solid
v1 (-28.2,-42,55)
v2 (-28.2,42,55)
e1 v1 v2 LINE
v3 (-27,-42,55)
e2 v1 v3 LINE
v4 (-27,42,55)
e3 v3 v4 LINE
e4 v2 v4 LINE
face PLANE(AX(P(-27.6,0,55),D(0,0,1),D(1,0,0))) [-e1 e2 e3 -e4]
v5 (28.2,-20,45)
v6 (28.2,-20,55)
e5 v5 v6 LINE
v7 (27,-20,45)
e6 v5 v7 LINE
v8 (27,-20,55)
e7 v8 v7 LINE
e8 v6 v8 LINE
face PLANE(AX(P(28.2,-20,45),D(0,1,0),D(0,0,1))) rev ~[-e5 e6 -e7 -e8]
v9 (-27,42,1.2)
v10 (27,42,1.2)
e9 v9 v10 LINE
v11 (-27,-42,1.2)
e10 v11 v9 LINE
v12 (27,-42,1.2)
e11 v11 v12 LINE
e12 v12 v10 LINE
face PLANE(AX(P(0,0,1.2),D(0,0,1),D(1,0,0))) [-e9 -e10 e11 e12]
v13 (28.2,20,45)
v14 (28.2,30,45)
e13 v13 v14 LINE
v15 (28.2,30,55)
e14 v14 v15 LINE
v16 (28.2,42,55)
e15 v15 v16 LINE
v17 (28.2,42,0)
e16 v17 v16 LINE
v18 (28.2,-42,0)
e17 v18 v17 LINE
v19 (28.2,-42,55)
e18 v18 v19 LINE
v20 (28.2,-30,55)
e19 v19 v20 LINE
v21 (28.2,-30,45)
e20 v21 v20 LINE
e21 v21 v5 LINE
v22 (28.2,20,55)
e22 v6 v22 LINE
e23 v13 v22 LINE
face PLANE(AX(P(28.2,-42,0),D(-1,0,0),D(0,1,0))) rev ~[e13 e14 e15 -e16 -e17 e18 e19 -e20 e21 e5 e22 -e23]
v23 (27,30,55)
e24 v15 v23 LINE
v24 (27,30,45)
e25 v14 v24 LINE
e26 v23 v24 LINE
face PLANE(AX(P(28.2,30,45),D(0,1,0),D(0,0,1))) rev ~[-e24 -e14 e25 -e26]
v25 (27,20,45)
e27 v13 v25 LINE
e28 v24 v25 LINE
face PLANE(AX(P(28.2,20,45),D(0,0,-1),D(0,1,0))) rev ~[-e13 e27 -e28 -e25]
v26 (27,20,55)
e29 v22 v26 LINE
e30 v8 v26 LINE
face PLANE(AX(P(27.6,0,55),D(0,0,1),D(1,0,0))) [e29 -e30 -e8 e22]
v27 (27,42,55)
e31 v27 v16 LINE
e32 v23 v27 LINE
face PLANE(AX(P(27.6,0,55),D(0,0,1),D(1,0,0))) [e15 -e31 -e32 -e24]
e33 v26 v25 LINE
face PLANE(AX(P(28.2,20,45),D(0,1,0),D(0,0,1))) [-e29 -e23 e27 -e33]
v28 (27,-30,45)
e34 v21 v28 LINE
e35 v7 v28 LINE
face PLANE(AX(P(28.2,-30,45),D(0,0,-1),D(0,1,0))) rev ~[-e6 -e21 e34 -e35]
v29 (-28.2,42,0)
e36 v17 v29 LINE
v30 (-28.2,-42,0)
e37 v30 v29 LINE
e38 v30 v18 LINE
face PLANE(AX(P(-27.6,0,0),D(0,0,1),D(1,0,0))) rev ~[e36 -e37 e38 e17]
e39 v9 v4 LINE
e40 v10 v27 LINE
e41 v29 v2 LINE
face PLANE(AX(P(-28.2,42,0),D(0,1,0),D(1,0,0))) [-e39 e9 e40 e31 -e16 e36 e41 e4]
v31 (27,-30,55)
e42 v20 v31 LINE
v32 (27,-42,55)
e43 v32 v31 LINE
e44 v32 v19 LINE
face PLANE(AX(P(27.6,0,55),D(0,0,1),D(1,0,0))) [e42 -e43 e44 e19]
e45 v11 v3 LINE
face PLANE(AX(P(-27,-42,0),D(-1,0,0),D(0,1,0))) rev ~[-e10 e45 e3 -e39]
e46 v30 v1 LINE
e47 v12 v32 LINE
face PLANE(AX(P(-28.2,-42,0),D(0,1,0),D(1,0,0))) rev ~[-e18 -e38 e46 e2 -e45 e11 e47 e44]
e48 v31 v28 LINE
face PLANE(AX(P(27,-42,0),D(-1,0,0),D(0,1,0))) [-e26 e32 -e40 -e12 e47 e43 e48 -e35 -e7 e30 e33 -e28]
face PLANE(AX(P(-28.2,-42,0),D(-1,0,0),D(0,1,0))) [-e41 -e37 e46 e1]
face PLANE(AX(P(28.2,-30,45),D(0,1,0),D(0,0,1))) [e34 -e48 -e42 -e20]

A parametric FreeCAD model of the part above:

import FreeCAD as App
import Part
import Sketcher
Q = App.Units.Quantity


def add_polygon(sketch, points):
    """Adds a closed chain of lines whose ends are joined by coincident constraints."""
    first, n = sketch.GeometryCount, len(points)
    for a, b in zip(points, points[1:] + points[:1]):
        sketch.addGeometry(Part.LineSegment(App.Vector(*a, 0), App.Vector(*b, 0)), False)
    for i in range(n):
        sketch.addConstraint(Sketcher.Constraint("Coincident", first + i, 2, first + (i + 1) % n, 1))

doc = App.newDocument("Part")
body = doc.addObject("PartDesign::Body", "Body")

sketch1 = body.newObject("Sketcher::SketchObject", "Sketch")
sketch1.AttachmentSupport = (doc.getObject("XY_Plane"), [""])
sketch1.MapMode = "FlatFace"
add_polygon(sketch1, [(-27, 42), (-27, -42), (27, -42), (27, 42)])
sketch1.addConstraint(Sketcher.Constraint("Vertical", 0))
sketch1.addConstraint(Sketcher.Constraint("Horizontal", 1))
sketch1.addConstraint(Sketcher.Constraint("Vertical", 2))
sketch1.addConstraint(Sketcher.Constraint("Horizontal", 3))
sketch1.addConstraint(Sketcher.Constraint("Symmetric", 0, 2, 2, 2, -1, 1))
sketch1.addConstraint(Sketcher.Constraint("DistanceX", 1, 1, 1, 2, Q("54 mm")))
sketch1.addConstraint(Sketcher.Constraint("DistanceY", 0, 2, 0, 1, Q("84 mm")))
pad1 = body.newObject("PartDesign::Pad", "Pad")
pad1.Profile = sketch1
pad1.Length = 1.2

sketch2 = body.newObject("Sketcher::SketchObject", "Sketch001")
sketch2.AttachmentSupport = (doc.getObject("XY_Plane"), [""])
sketch2.MapMode = "FlatFace"
add_polygon(sketch2, [(-28.2, 42), (-28.2, -42), (-27, -42), (-27, 42)])
add_polygon(sketch2, [(27, 42), (27, -42), (28.2, -42), (28.2, 42)])
sketch2.addConstraint(Sketcher.Constraint("Vertical", 0))
sketch2.addConstraint(Sketcher.Constraint("Horizontal", 1))
sketch2.addConstraint(Sketcher.Constraint("Vertical", 2))
sketch2.addConstraint(Sketcher.Constraint("Horizontal", 3))
sketch2.addConstraint(Sketcher.Constraint("Vertical", 4))
sketch2.addConstraint(Sketcher.Constraint("Horizontal", 5))
sketch2.addConstraint(Sketcher.Constraint("Vertical", 6))
sketch2.addConstraint(Sketcher.Constraint("Horizontal", 7))
sketch2.addConstraint(Sketcher.Constraint("Symmetric", 2, 2, 4, 2, -1, 1))
sketch2.addConstraint(Sketcher.Constraint("Symmetric", 0, 2, 6, 2, -1, 1))
sketch2.addConstraint(Sketcher.Constraint("Horizontal", 1, 2, 4, 2))
sketch2.addConstraint(Sketcher.Constraint("DistanceY", 0, 2, 0, 1, Q("84 mm")))
sketch2.addConstraint(Sketcher.Constraint("DistanceX", 1, 1, 1, 2, Q("1.2 mm")))
sketch2.addConstraint(Sketcher.Constraint("DistanceX", 1, 2, -1, 1, Q("27 mm")))
pad2 = body.newObject("PartDesign::Pad", "Pad001")
pad2.Profile = sketch2
pad2.Length = 55

sketch3 = body.newObject("Sketcher::SketchObject", "Sketch002")
sketch3.AttachmentSupport = (doc.getObject("YZ_Plane"), [""])
sketch3.MapMode = "FlatFace"
sketch3.AttachmentOffset = App.Placement(App.Vector(0, 0, 28.2), App.Rotation())
add_polygon(sketch3, [(-30, 55), (-30, 45), (-20, 45), (-20, 55)])
add_polygon(sketch3, [(20, 55), (20, 45), (30, 45), (30, 55)])
sketch3.addConstraint(Sketcher.Constraint("Vertical", 0))
sketch3.addConstraint(Sketcher.Constraint("Horizontal", 1))
sketch3.addConstraint(Sketcher.Constraint("Vertical", 2))
sketch3.addConstraint(Sketcher.Constraint("Horizontal", 3))
sketch3.addConstraint(Sketcher.Constraint("Vertical", 4))
sketch3.addConstraint(Sketcher.Constraint("Horizontal", 5))
sketch3.addConstraint(Sketcher.Constraint("Vertical", 6))
sketch3.addConstraint(Sketcher.Constraint("Horizontal", 7))
sketch3.addConstraint(Sketcher.Constraint("Symmetric", 1, 2, 4, 2, -2))
sketch3.addConstraint(Sketcher.Constraint("Symmetric", 3, 2, 6, 2, -2))
sketch3.addConstraint(Sketcher.Constraint("Equal", 7, 0))
sketch3.addConstraint(Sketcher.Constraint("DistanceX", 1, 1, 1, 2, Q("10 mm")))
sketch3.addConstraint(Sketcher.Constraint("DistanceX", 0, 2, -1, 1, Q("30 mm")))
sketch3.addConstraint(Sketcher.Constraint("DistanceY", -1, 1, 0, 2, Q("45 mm")))
pocket1 = body.newObject("PartDesign::Pocket", "Pocket")
pocket1.Profile = sketch3
pocket1.Length = 25

doc.recompute()
